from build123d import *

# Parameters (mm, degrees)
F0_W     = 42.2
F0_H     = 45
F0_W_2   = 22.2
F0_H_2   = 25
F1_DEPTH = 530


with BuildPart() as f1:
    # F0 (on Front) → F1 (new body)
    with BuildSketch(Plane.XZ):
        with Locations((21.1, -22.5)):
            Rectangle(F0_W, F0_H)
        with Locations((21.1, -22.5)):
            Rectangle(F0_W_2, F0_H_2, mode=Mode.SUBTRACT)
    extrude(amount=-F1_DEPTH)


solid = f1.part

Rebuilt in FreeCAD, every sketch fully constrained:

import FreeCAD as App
import Part
import Sketcher
from FreeCAD import Vector

doc = App.newDocument("Part")
params = doc.addObject("Spreadsheet::Sheet", "Params")
for row, (alias, value) in enumerate([
    ("sketch1_height", "45 mm"),
    ("sketch1_height2", "25 mm"),
    ("sketch1_width", "42.2 mm"),
    ("sketch1_width2", "22.2 mm"),
    ("pad1_length", "530 mm"),
], start=1):
    params.set(f"A{row}", alias)
    params.set(f"B{row}", "=" + value)
    params.setAlias(f"B{row}", alias)

body = doc.addObject("PartDesign::Body", "Body")

sketch1 = body.newObject("Sketcher::SketchObject", "Sketch")
sketch1.AttachmentSupport = (doc.getObject("XZ_Plane"), [""])
sketch1.MapMode = "FlatFace"
sketch1.addGeometry([
    Part.LineSegment(Vector(0, 0, 0), Vector(0, -45, 0)),
    Part.LineSegment(Vector(0, -45, 0), Vector(42.2, -45, 0)),
    Part.LineSegment(Vector(42.2, -45, 0), Vector(42.2, 0, 0)),
    Part.LineSegment(Vector(42.2, 0, 0), Vector(0, 0, 0)),
    Part.LineSegment(Vector(32.2, -35, 0), Vector(10, -35, 0)),
    Part.LineSegment(Vector(10, -35, 0), Vector(10, -10, 0)),
    Part.LineSegment(Vector(10, -10, 0), Vector(32.2, -10, 0)),
    Part.LineSegment(Vector(32.2, -10, 0), Vector(32.2, -35, 0)),
], False)
sketch1.addConstraint([
    Sketcher.Constraint("Coincident", 0, 2, 1, 1),
    Sketcher.Constraint("Coincident", 1, 2, 2, 1),
    Sketcher.Constraint("Coincident", 2, 2, 3, 1),
    Sketcher.Constraint("Coincident", 3, 2, 0, 1),
    Sketcher.Constraint("Coincident", 4, 2, 5, 1),
    Sketcher.Constraint("Coincident", 5, 2, 6, 1),
    Sketcher.Constraint("Coincident", 6, 2, 7, 1),
    Sketcher.Constraint("Coincident", 7, 2, 4, 1),
    Sketcher.Constraint("Vertical", 0),
    Sketcher.Constraint("Horizontal", 1),
    Sketcher.Constraint("Vertical", 2),
    Sketcher.Constraint("Horizontal", 3),
    Sketcher.Constraint("Horizontal", 4),
    Sketcher.Constraint("Vertical", 5),
    Sketcher.Constraint("Horizontal", 6),
    Sketcher.Constraint("Vertical", 7),
    Sketcher.Constraint("Coincident", 3, 2, -1, 1),
    Sketcher.Constraint("DistanceY", 0, 2, 0, 1, 45.0),
    Sketcher.Constraint("DistanceY", 5, 1, 5, 2, 25.0),
    Sketcher.Constraint("DistanceX", 1, 1, 1, 2, 42.2),
    Sketcher.Constraint("DistanceX", 4, 2, 4, 1, 22.2),
    Sketcher.Constraint("DistanceX", -1, 1, 4, 2, 10.0),
    Sketcher.Constraint("DistanceY", 4, 2, -1, 1, 35.0),
])
sketch1.setExpression("Constraints[17]", "Params.sketch1_height")
sketch1.setExpression("Constraints[18]", "Params.sketch1_height2")
sketch1.setExpression("Constraints[19]", "Params.sketch1_width")
sketch1.setExpression("Constraints[20]", "Params.sketch1_width2")
pad1 = body.newObject("PartDesign::Pad", "Pad")
pad1.Profile = sketch1
pad1.setExpression("Length", "Params.pad1_length")
pad1.Reversed = True

doc.recompute()
